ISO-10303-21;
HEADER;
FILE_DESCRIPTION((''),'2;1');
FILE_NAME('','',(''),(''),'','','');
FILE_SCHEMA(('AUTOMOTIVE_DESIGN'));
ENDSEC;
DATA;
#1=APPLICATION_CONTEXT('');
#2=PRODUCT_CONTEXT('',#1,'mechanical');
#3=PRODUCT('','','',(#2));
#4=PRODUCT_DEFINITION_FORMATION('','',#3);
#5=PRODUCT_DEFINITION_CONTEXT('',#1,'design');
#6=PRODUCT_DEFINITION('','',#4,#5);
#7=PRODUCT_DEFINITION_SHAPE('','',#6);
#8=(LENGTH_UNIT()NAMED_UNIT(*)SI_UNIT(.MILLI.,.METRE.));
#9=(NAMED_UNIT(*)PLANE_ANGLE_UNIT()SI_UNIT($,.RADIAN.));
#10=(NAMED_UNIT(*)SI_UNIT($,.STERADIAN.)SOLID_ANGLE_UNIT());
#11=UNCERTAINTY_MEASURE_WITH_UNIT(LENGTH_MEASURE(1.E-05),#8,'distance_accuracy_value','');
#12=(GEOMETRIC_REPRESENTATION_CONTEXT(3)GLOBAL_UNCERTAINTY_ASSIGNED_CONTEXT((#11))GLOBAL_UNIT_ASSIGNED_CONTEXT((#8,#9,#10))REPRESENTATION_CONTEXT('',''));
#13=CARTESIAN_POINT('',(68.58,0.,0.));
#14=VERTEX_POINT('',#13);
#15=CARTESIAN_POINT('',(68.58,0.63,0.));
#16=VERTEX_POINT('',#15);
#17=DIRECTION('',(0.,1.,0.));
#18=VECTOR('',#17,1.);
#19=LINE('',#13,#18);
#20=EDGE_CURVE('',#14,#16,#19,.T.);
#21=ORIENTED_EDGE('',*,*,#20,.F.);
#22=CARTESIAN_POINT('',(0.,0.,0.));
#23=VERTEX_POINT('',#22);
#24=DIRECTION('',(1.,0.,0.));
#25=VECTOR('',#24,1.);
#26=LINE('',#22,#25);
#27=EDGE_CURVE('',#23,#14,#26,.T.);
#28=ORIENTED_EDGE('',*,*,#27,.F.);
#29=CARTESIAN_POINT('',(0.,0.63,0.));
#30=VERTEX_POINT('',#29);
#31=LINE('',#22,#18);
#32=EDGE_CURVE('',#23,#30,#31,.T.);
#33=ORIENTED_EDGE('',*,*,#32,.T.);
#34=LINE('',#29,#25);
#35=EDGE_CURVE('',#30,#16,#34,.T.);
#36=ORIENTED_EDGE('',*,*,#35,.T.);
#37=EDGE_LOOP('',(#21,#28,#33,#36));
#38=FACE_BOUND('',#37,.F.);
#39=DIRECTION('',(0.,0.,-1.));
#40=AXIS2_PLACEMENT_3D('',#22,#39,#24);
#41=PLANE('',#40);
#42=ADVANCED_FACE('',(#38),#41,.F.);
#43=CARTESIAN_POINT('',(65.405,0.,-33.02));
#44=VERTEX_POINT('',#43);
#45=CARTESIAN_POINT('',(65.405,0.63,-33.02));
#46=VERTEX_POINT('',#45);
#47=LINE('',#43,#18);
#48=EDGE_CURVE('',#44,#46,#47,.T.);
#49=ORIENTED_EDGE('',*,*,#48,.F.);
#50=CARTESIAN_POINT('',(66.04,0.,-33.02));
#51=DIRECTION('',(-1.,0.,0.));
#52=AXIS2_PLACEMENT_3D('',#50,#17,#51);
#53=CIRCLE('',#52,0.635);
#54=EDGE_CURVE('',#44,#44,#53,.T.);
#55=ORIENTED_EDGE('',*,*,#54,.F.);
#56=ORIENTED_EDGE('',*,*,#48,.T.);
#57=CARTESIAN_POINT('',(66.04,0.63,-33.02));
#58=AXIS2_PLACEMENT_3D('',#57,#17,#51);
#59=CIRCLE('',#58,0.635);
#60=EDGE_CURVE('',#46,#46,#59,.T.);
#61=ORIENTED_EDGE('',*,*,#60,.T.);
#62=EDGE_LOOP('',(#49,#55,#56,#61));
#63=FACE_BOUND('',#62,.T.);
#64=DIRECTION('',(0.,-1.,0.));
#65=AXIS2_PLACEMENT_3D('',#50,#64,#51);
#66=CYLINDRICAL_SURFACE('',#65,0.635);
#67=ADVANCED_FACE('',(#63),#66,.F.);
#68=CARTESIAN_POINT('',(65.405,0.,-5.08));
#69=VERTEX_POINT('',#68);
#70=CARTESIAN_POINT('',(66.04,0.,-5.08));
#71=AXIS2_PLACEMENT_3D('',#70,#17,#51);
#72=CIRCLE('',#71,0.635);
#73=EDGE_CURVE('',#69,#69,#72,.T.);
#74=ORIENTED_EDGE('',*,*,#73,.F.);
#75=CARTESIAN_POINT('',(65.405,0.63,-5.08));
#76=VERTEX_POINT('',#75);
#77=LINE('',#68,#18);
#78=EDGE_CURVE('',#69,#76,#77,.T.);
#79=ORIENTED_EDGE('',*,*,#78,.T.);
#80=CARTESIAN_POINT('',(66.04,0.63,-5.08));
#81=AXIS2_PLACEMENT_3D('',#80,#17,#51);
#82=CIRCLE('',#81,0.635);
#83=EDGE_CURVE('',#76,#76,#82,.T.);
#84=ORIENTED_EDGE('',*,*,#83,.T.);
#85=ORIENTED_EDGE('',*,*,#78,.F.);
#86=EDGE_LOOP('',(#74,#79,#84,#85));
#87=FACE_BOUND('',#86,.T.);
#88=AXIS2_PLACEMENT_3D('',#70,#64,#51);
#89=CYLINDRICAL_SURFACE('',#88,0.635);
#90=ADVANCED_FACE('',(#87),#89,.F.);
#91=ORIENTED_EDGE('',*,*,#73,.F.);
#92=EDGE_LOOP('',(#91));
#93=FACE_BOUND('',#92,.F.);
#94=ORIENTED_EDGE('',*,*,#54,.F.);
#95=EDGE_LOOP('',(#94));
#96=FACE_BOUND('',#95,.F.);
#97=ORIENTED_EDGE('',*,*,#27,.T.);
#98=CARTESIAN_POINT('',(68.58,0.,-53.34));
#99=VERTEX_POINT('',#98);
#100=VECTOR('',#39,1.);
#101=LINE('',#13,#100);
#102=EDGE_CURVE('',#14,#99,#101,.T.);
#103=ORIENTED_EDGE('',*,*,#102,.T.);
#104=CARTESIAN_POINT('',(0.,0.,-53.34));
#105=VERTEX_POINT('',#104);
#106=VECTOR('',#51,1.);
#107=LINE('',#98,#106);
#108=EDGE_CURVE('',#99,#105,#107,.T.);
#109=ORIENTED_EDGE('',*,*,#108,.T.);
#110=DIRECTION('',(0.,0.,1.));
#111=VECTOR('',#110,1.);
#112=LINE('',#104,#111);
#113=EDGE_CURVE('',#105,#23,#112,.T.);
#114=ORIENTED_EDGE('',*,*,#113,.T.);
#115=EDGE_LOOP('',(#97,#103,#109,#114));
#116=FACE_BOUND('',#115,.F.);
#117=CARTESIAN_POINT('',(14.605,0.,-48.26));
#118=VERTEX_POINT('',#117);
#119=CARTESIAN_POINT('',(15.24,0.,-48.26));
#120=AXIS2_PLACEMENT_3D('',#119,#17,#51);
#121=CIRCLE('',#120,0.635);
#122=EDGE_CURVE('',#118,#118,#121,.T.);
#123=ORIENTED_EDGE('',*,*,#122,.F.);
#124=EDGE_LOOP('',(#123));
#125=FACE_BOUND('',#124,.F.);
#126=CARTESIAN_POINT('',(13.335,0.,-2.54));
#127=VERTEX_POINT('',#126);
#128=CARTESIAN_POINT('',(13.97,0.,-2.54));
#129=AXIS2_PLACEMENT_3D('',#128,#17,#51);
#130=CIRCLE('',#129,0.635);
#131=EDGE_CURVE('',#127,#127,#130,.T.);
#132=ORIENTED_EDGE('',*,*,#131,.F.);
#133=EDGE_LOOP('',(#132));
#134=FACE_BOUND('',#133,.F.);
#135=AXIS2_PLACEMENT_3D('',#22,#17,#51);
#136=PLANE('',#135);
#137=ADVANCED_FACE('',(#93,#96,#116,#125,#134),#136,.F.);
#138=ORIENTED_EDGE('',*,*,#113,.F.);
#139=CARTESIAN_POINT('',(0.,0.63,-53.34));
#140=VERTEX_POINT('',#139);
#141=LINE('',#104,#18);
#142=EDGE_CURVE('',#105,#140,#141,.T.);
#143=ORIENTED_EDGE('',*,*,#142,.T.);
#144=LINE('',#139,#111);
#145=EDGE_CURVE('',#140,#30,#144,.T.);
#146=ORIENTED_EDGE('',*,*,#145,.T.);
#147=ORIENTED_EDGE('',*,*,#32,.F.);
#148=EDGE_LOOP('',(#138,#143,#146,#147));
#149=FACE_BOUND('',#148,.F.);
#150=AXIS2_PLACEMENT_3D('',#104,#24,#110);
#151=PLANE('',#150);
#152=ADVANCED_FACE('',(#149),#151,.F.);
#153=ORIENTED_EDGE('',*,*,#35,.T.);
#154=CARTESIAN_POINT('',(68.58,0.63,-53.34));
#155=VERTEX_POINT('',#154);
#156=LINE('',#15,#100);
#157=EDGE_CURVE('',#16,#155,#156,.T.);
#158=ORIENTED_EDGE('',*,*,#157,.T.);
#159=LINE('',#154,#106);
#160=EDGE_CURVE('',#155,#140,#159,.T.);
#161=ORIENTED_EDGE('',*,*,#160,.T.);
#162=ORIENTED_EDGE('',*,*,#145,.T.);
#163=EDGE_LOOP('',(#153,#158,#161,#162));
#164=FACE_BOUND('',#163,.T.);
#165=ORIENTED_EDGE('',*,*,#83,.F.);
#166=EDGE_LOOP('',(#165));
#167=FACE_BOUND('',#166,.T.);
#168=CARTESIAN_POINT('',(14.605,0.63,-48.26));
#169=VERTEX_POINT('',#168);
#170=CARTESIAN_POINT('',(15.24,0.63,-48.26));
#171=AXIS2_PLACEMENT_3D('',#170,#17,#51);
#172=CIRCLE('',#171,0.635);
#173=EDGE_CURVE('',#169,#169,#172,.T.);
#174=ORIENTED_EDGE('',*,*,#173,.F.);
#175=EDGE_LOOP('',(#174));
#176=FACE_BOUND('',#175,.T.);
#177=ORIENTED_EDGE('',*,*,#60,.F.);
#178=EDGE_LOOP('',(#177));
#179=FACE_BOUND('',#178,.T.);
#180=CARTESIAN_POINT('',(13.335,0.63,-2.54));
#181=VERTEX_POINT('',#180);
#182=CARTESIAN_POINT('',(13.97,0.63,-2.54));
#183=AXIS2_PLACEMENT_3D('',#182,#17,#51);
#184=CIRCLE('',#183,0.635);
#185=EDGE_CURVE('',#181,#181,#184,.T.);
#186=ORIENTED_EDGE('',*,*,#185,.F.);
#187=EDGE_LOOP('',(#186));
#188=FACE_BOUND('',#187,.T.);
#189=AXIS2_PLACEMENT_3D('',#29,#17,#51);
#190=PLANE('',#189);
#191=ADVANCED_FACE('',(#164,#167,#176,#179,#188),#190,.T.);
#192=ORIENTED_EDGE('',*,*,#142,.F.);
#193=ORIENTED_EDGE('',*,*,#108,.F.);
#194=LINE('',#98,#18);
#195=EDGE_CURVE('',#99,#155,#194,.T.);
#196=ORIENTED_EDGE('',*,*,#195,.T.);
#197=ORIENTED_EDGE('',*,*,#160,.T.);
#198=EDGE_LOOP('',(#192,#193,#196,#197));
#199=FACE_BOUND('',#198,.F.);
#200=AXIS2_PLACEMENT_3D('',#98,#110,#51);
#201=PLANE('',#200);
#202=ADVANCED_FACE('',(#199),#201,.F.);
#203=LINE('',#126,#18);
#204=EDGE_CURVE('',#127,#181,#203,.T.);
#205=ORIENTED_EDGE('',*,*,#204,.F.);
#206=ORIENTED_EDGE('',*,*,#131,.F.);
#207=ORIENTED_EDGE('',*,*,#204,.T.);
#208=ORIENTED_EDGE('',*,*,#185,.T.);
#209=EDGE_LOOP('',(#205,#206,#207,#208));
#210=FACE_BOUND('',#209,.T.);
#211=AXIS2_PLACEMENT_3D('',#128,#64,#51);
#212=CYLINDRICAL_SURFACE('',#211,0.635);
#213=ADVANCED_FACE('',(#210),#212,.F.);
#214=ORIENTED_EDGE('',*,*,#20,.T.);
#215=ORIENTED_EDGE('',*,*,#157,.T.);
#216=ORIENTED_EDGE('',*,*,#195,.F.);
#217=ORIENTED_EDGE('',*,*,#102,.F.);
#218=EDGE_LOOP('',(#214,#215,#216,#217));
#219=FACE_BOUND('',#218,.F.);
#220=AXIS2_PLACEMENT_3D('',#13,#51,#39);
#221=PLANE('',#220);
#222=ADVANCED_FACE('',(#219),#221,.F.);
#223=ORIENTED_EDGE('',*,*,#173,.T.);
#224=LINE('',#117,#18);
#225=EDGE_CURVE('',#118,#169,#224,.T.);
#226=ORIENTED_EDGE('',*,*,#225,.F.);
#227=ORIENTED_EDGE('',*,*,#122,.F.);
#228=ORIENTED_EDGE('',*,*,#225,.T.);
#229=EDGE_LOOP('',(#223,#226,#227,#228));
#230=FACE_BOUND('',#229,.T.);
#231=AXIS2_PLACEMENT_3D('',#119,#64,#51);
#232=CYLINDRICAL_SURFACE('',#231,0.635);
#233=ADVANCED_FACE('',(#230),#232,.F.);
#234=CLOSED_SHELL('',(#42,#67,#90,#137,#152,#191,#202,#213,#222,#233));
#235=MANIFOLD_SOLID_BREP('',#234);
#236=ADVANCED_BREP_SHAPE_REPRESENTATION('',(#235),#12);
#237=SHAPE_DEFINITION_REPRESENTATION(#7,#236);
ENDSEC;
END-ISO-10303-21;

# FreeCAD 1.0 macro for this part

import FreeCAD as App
import Part
import Sketcher
Q = App.Units.Quantity

doc = App.newDocument("Part")
body = doc.addObject("PartDesign::Body", "Body")

# Sketch on XZ plane
sketch1 = doc.addObject("Sketcher::SketchObject", "Sketch")
body.addObject(sketch1)
sketch1.AttachmentSupport = (doc.XZ_Plane, [""])
sketch1.MapMode = "FlatFace"
sketch1.addGeometry([
    Part.LineSegment(App.Vector(0, -53.3, 0), App.Vector(0, 0, 0)),  # 0
    Part.LineSegment(App.Vector(0, 0, 0), App.Vector(68.6, 0, 0)),  # 1
    Part.LineSegment(App.Vector(68.6, 0, 0), App.Vector(68.6, -53.3, 0)),  # 2
    Part.LineSegment(App.Vector(68.6, -53.3, 0), App.Vector(0, -53.3, 0)),  # 3
    Part.Circle(App.Vector(66, -33, 0), App.Vector(0, 0, 1), 0.6),  # 4
    Part.Circle(App.Vector(15.2, -48.3, 0), App.Vector(0, 0, 1), 0.6),  # 5
    Part.Circle(App.Vector(66, -5.1, 0), App.Vector(0, 0, 1), 0.6),  # 6
    Part.Circle(App.Vector(14, -2.5, 0), App.Vector(0, 0, 1), 0.6),  # 7
], False)
sketch1.addConstraint([
    Sketcher.Constraint("Coincident", 0, 2, 1, 1),
    Sketcher.Constraint("Coincident", 1, 2, 2, 1),
    Sketcher.Constraint("Coincident", 2, 2, 3, 1),
    Sketcher.Constraint("Coincident", 3, 2, 0, 1),
    Sketcher.Constraint("Vertical", 0),
    Sketcher.Constraint("Horizontal", 1),
    Sketcher.Constraint("Vertical", 2),
    Sketcher.Constraint("Horizontal", 3),
    Sketcher.Constraint("Coincident", 0, 2, -1, 1),
    Sketcher.Constraint("Equal", 4, 5),
    Sketcher.Constraint("Equal", 5, 6),
    Sketcher.Constraint("Equal", 6, 7),
    Sketcher.Constraint("Vertical", 4, 3, 6, 3),
    Sketcher.Constraint("Diameter", 4, Q("0.05 in")),
    Sketcher.Constraint("DistanceX", 1, 1, 1, 2, Q("2.7 in")),
    Sketcher.Constraint("DistanceY", 0, 1, 0, 2, Q("2.1 in")),
    Sketcher.Constraint("DistanceX", 5, 3, 4, 3, Q("2 in")),
    Sketcher.Constraint("DistanceY", 2, 2, 7, 3, Q("2 in")),
    Sketcher.Constraint("DistanceX", -1, 1, 5, 3, Q("0.6 in")),
    Sketcher.Constraint("DistanceY", 6, 3, -1, 1, Q("0.2 in")),
    Sketcher.Constraint("DistanceY", 5, 3, 4, 3, Q("0.6 in")),
    Sketcher.Constraint("DistanceY", 4, 3, 6, 3, Q("1.1 in")),
    Sketcher.Constraint("DistanceX", -1, 1, 7, 3, Q("0.55 in")),
])
pad1 = doc.addObject("PartDesign::Pad", "Pad")
body.addObject(pad1)
pad1.Profile = sketch1
pad1.Length = Q("0.0248031 in")
pad1.Reversed = True

doc.recompute()
